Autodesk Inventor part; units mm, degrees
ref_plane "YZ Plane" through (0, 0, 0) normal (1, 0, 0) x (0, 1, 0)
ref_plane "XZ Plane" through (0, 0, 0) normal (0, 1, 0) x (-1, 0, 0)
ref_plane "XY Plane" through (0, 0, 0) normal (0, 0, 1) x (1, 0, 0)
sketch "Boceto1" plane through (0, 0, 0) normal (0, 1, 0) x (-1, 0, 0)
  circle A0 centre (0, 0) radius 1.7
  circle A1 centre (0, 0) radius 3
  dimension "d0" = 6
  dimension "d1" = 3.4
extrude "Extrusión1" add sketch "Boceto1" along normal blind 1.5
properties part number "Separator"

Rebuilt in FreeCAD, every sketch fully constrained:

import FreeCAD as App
import Part
import Sketcher
from FreeCAD import Vector
Q = App.Units.Quantity

doc = App.newDocument("Part")
body = doc.addObject("PartDesign::Body", "Body")

# Sketch on XZ plane
sketch1 = body.newObject("Sketcher::SketchObject", "Sketch")
sketch1.AttachmentSupport = (doc.getObject("XZ_Plane"), [""])
sketch1.MapMode = "FlatFace"
sketch1.addGeometry(Part.Circle(Vector(0, 0, 0), Vector(0, 0, 1), 3), False)
sketch1.addGeometry(Part.Circle(Vector(0, 0, 0), Vector(0, 0, 1), 1.7), False)
sketch1.addConstraint(Sketcher.Constraint("Coincident", 0, 3, -1, 1))
sketch1.addConstraint(Sketcher.Constraint("Coincident", 1, 3, -1, 1))
sketch1.addConstraint(Sketcher.Constraint("Diameter", 0, Q("6 mm")))
sketch1.addConstraint(Sketcher.Constraint("Diameter", 1, Q("3.4 mm")))
pad1 = body.newObject("PartDesign::Pad", "Pad")
pad1.Profile = sketch1
pad1.Length = 1.5
pad1.Reversed = True

doc.recompute()
